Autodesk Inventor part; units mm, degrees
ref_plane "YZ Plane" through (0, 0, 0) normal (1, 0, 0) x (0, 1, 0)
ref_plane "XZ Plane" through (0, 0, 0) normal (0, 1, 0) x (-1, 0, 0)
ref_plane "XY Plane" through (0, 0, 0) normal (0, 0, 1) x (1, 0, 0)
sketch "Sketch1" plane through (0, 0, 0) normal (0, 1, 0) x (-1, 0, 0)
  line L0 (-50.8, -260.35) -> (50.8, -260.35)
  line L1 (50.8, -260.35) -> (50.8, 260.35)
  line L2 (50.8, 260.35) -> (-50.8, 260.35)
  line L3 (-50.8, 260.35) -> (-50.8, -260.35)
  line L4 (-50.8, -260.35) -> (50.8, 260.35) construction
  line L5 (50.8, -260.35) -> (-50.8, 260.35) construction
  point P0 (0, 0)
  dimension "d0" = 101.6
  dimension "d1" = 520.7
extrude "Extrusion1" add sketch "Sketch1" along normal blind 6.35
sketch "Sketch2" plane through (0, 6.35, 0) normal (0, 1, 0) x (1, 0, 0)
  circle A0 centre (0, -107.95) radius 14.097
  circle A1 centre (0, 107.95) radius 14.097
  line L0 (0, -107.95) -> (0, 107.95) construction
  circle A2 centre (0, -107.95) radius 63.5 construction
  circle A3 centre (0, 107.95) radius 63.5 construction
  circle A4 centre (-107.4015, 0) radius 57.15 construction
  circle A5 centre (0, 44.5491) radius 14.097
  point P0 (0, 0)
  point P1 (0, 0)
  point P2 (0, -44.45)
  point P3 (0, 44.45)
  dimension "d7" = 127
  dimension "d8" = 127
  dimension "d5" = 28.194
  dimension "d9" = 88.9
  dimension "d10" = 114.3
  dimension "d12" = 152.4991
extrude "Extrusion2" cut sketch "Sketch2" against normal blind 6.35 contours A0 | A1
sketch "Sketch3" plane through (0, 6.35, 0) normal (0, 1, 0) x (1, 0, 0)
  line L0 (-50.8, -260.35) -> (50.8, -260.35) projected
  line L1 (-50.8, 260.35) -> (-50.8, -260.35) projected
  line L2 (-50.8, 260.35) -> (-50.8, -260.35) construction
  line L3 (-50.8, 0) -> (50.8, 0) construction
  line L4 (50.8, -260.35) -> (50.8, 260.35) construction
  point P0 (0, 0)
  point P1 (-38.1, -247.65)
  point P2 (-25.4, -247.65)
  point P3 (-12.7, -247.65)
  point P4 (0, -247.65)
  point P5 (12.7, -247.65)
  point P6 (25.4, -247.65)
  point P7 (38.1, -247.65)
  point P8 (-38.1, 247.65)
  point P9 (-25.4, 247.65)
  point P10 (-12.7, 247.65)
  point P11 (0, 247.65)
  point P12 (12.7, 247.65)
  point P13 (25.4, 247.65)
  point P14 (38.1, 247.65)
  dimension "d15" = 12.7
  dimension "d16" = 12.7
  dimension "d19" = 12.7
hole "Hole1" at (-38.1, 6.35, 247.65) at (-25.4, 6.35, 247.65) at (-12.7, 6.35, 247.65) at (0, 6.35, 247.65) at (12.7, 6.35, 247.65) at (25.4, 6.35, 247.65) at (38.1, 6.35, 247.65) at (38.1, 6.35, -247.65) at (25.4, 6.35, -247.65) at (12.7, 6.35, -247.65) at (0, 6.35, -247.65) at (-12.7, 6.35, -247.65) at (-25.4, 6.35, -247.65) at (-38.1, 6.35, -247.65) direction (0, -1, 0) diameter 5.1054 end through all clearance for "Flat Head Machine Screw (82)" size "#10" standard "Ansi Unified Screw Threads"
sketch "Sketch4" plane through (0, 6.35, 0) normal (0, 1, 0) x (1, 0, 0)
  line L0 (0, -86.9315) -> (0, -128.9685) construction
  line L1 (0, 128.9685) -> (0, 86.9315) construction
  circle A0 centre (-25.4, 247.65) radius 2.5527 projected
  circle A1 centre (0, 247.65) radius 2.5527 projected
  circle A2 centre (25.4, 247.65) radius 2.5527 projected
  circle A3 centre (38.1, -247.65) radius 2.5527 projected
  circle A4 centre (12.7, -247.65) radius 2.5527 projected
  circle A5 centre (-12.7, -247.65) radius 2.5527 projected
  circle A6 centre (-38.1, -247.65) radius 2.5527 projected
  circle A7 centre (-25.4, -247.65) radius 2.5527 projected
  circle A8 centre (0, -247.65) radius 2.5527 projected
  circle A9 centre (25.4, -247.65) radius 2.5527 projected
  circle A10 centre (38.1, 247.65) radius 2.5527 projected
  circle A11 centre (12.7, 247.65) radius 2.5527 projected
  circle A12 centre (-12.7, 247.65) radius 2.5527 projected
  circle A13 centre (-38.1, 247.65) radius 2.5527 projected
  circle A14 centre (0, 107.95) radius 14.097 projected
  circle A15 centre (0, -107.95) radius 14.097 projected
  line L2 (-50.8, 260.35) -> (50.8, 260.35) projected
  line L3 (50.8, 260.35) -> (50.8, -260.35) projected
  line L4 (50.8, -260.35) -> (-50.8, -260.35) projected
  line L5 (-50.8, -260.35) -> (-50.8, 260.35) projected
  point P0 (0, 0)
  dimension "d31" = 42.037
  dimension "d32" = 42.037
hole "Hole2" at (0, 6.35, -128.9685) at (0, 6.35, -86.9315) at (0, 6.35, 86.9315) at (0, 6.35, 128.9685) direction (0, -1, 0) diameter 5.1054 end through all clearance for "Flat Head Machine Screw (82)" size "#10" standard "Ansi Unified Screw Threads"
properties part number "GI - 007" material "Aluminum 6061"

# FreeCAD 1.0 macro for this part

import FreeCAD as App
import Part
import Sketcher
Q = App.Units.Quantity


def add_polygon(sketch, points):
    """Adds a closed chain of lines whose ends are joined by coincident constraints."""
    first, n = sketch.GeometryCount, len(points)
    for a, b in zip(points, points[1:] + points[:1]):
        sketch.addGeometry(Part.LineSegment(App.Vector(*a, 0), App.Vector(*b, 0)), False)
    for i in range(n):
        sketch.addConstraint(Sketcher.Constraint("Coincident", first + i, 2, first + (i + 1) % n, 1))

doc = App.newDocument("Part")
params = doc.addObject("Spreadsheet::Sheet", "Params")
for row, (alias, value) in enumerate([
    ("sketch1_width", "4 in"),
    ("sketch1_height", "20.5 in"),
    ("pad1_length", "0.25 in"),
    ("sketch2_diameter", "1.11 in"),
    ("pocket1_length", "0.25 in"),
    ("sketch3_diameter", "0.201 in"),
    ("hole_diameter", "0.201 in"),
    ("sketch4_diameter", "0.201 in"),
    ("hole2_diameter", "0.201 in"),
], start=1):
    params.set(f"A{row}", alias)
    params.set(f"B{row}", "=" + value)
    params.setAlias(f"B{row}", alias)

body = doc.addObject("PartDesign::Body", "Body")

sketch1 = body.newObject("Sketcher::SketchObject", "Sketch")
sketch1.AttachmentSupport = (doc.getObject("XZ_Plane"), [""])
sketch1.MapMode = "FlatFace"
add_polygon(sketch1, [(50.8, 260.35), (50.8, -260.35), (-50.8, -260.35), (-50.8, 260.35)])
sketch1.addConstraint([
    Sketcher.Constraint("Vertical", 0),
    Sketcher.Constraint("Horizontal", 1),
    Sketcher.Constraint("Vertical", 2),
    Sketcher.Constraint("Horizontal", 3),
    Sketcher.Constraint("Symmetric", 0, 2, 2, 2, -1, 1),
    Sketcher.Constraint("DistanceX", 1, 2, 1, 1, Q("4 in")),
    Sketcher.Constraint("DistanceY", 0, 2, 0, 1, Q("20.5 in")),
])
sketch1.setExpression("Constraints[9]", "Params.sketch1_width")
sketch1.setExpression("Constraints[10]", "Params.sketch1_height")
pad1 = body.newObject("PartDesign::Pad", "Pad")
pad1.Profile = sketch1
pad1.setExpression("Length", "Params.pad1_length")
pad1.Reversed = True

sketch2 = body.newObject("Sketcher::SketchObject", "Sketch001")
sketch2.AttachmentSupport = (doc.getObject("XZ_Plane"), [""])
sketch2.MapMode = "FlatFace"
sketch2.AttachmentOffset = App.Placement(App.Vector(0, 0, -0.25 * 25.4), App.Rotation())
sketch2.addGeometry([
    Part.Circle(App.Vector(0, 107.95, 0), App.Vector(0, 0, 1), 14.097),
    Part.Circle(App.Vector(0, -107.95, 0), App.Vector(0, 0, 1), 14.097),
], False)
sketch2.addConstraint([
    Sketcher.Constraint("Equal", 0, 1),
    Sketcher.Constraint("Symmetric", 0, 3, 1, 3, -1, 1),
    Sketcher.Constraint("PointOnObject", 0, 3, -2),
    Sketcher.Constraint("Diameter", 0, Q("1.11 in")),
    Sketcher.Constraint("DistanceY", 1, 3, 0, 3, Q("8.5 in")),
])
sketch2.setExpression("Constraints[3]", "Params.sketch2_diameter")
pocket1 = body.newObject("PartDesign::Pocket", "Pocket")
pocket1.Profile = sketch2
pocket1.setExpression("Length", "Params.pocket1_length")
pocket1.Reversed = True

sketch3 = body.newObject("Sketcher::SketchObject", "Sketch002")
sketch3.AttachmentSupport = (doc.getObject("XZ_Plane"), [""])
sketch3.MapMode = "FlatFace"
sketch3.AttachmentOffset = App.Placement(App.Vector(0, 0, -0.25 * 25.4), App.Rotation())
sketch3.addGeometry([
    Part.Circle(App.Vector(-38.1, 247.65, 0), App.Vector(0, 0, 1), 2.5527),
    Part.Circle(App.Vector(-25.4, 247.65, 0), App.Vector(0, 0, 1), 2.5527),
    Part.Circle(App.Vector(-12.7, 247.65, 0), App.Vector(0, 0, 1), 2.5527),
    Part.Circle(App.Vector(0, 247.65, 0), App.Vector(0, 0, 1), 2.5527),
    Part.Circle(App.Vector(12.7, 247.65, 0), App.Vector(0, 0, 1), 2.5527),
    Part.Circle(App.Vector(25.4, 247.65, 0), App.Vector(0, 0, 1), 2.5527),
    Part.Circle(App.Vector(38.1, 247.65, 0), App.Vector(0, 0, 1), 2.5527),
    Part.Circle(App.Vector(38.1, -247.65, 0), App.Vector(0, 0, 1), 2.5527),
    Part.Circle(App.Vector(25.4, -247.65, 0), App.Vector(0, 0, 1), 2.5527),
    Part.Circle(App.Vector(12.7, -247.65, 0), App.Vector(0, 0, 1), 2.5527),
    Part.Circle(App.Vector(0, -247.65, 0), App.Vector(0, 0, 1), 2.5527),
    Part.Circle(App.Vector(-12.7, -247.65, 0), App.Vector(0, 0, 1), 2.5527),
    Part.Circle(App.Vector(-25.4, -247.65, 0), App.Vector(0, 0, 1), 2.5527),
    Part.Circle(App.Vector(-38.1, -247.65, 0), App.Vector(0, 0, 1), 2.5527),
], False)
sketch3.addConstraint([
    Sketcher.Constraint("Equal", 0, 1),
    Sketcher.Constraint("Equal", 1, 2),
    Sketcher.Constraint("Equal", 2, 3),
    Sketcher.Constraint("Equal", 3, 4),
    Sketcher.Constraint("Equal", 4, 5),
    Sketcher.Constraint("Equal", 5, 6),
    Sketcher.Constraint("Equal", 6, 7),
    Sketcher.Constraint("Equal", 7, 8),
    Sketcher.Constraint("Equal", 8, 9),
    Sketcher.Constraint("Equal", 9, 10),
    Sketcher.Constraint("Equal", 10, 11),
    Sketcher.Constraint("Equal", 11, 12),
    Sketcher.Constraint("Equal", 12, 13),
    Sketcher.Constraint("Symmetric", 0, 3, 7, 3, -1, 1),
    Sketcher.Constraint("Symmetric", 1, 3, 8, 3, -1, 1),
    Sketcher.Constraint("Symmetric", 2, 3, 9, 3, -1, 1),
    Sketcher.Constraint("Symmetric", 3, 3, 10, 3, -1, 1),
    Sketcher.Constraint("Symmetric", 4, 3, 11, 3, -1, 1),
    Sketcher.Constraint("Symmetric", 5, 3, 12, 3, -1, 1),
    Sketcher.Constraint("Symmetric", 6, 3, 13, 3, -1, 1),
    Sketcher.Constraint("Symmetric", 2, 3, 4, 3, -2),
    Sketcher.Constraint("Symmetric", 1, 3, 5, 3, -2),
    Sketcher.Constraint("Symmetric", 0, 3, 6, 3, -2),
    Sketcher.Constraint("PointOnObject", 3, 3, -2),
    Sketcher.Constraint("Horizontal", 0, 3, 1, 3),
    Sketcher.Constraint("Horizontal", 1, 3, 2, 3),
    Sketcher.Constraint("Horizontal", 2, 3, 3, 3),
    Sketcher.Constraint("Diameter", 0, Q("0.201 in")),
    Sketcher.Constraint("DistanceX", 1, 3, -1, 1, Q("1 in")),
    Sketcher.Constraint("DistanceX", 0, 3, 2, 3, Q("1 in")),
    Sketcher.Constraint("DistanceX", 2, 3, 4, 3, Q("1 in")),
    Sketcher.Constraint("DistanceY", 7, 3, 6, 3, Q("19.5 in")),
])
sketch3.setExpression("Constraints[27]", "Params.sketch3_diameter")
doc.recompute()
hole = body.newObject("PartDesign::Hole", "Hole")
hole.Profile = sketch3
hole.ThreadType = "None"
hole.setExpression("Diameter", "Params.hole_diameter")
hole.DepthType = "ThroughAll"
hole.Reversed = True

sketch4 = body.newObject("Sketcher::SketchObject", "Sketch003")
sketch4.AttachmentSupport = (doc.getObject("XZ_Plane"), [""])
sketch4.MapMode = "FlatFace"
sketch4.AttachmentOffset = App.Placement(App.Vector(0, 0, -0.25 * 25.4), App.Rotation())
sketch4.addGeometry([
    Part.Circle(App.Vector(0, -128.9685, 0), App.Vector(0, 0, 1), 2.5527),
    Part.Circle(App.Vector(0, -86.9315, 0), App.Vector(0, 0, 1), 2.5527),
    Part.Circle(App.Vector(0, 86.9315, 0), App.Vector(0, 0, 1), 2.5527),
    Part.Circle(App.Vector(0, 128.9685, 0), App.Vector(0, 0, 1), 2.5527),
], False)
sketch4.addConstraint([
    Sketcher.Constraint("Equal", 0, 1),
    Sketcher.Constraint("Equal", 1, 2),
    Sketcher.Constraint("Equal", 2, 3),
    Sketcher.Constraint("Symmetric", 1, 3, 2, 3, -1, 1),
    Sketcher.Constraint("Symmetric", 0, 3, 3, 3, -1, 1),
    Sketcher.Constraint("PointOnObject", 0, 3, -2),
    Sketcher.Constraint("PointOnObject", 1, 3, -2),
    Sketcher.Constraint("Diameter", 0, Q("0.201 in")),
    Sketcher.Constraint("DistanceY", 0, 3, 2, 3, Q("8.5 in")),
    Sketcher.Constraint("DistanceY", 0, 3, 1, 3, Q("1.655 in")),
])
sketch4.setExpression("Constraints[7]", "Params.sketch4_diameter")
doc.recompute()
hole2 = body.newObject("PartDesign::Hole", "Hole001")
hole2.Profile = sketch4
hole2.ThreadType = "None"
hole2.setExpression("Diameter", "Params.hole2_diameter")
hole2.DepthType = "ThroughAll"
hole2.Reversed = True

doc.recompute()
